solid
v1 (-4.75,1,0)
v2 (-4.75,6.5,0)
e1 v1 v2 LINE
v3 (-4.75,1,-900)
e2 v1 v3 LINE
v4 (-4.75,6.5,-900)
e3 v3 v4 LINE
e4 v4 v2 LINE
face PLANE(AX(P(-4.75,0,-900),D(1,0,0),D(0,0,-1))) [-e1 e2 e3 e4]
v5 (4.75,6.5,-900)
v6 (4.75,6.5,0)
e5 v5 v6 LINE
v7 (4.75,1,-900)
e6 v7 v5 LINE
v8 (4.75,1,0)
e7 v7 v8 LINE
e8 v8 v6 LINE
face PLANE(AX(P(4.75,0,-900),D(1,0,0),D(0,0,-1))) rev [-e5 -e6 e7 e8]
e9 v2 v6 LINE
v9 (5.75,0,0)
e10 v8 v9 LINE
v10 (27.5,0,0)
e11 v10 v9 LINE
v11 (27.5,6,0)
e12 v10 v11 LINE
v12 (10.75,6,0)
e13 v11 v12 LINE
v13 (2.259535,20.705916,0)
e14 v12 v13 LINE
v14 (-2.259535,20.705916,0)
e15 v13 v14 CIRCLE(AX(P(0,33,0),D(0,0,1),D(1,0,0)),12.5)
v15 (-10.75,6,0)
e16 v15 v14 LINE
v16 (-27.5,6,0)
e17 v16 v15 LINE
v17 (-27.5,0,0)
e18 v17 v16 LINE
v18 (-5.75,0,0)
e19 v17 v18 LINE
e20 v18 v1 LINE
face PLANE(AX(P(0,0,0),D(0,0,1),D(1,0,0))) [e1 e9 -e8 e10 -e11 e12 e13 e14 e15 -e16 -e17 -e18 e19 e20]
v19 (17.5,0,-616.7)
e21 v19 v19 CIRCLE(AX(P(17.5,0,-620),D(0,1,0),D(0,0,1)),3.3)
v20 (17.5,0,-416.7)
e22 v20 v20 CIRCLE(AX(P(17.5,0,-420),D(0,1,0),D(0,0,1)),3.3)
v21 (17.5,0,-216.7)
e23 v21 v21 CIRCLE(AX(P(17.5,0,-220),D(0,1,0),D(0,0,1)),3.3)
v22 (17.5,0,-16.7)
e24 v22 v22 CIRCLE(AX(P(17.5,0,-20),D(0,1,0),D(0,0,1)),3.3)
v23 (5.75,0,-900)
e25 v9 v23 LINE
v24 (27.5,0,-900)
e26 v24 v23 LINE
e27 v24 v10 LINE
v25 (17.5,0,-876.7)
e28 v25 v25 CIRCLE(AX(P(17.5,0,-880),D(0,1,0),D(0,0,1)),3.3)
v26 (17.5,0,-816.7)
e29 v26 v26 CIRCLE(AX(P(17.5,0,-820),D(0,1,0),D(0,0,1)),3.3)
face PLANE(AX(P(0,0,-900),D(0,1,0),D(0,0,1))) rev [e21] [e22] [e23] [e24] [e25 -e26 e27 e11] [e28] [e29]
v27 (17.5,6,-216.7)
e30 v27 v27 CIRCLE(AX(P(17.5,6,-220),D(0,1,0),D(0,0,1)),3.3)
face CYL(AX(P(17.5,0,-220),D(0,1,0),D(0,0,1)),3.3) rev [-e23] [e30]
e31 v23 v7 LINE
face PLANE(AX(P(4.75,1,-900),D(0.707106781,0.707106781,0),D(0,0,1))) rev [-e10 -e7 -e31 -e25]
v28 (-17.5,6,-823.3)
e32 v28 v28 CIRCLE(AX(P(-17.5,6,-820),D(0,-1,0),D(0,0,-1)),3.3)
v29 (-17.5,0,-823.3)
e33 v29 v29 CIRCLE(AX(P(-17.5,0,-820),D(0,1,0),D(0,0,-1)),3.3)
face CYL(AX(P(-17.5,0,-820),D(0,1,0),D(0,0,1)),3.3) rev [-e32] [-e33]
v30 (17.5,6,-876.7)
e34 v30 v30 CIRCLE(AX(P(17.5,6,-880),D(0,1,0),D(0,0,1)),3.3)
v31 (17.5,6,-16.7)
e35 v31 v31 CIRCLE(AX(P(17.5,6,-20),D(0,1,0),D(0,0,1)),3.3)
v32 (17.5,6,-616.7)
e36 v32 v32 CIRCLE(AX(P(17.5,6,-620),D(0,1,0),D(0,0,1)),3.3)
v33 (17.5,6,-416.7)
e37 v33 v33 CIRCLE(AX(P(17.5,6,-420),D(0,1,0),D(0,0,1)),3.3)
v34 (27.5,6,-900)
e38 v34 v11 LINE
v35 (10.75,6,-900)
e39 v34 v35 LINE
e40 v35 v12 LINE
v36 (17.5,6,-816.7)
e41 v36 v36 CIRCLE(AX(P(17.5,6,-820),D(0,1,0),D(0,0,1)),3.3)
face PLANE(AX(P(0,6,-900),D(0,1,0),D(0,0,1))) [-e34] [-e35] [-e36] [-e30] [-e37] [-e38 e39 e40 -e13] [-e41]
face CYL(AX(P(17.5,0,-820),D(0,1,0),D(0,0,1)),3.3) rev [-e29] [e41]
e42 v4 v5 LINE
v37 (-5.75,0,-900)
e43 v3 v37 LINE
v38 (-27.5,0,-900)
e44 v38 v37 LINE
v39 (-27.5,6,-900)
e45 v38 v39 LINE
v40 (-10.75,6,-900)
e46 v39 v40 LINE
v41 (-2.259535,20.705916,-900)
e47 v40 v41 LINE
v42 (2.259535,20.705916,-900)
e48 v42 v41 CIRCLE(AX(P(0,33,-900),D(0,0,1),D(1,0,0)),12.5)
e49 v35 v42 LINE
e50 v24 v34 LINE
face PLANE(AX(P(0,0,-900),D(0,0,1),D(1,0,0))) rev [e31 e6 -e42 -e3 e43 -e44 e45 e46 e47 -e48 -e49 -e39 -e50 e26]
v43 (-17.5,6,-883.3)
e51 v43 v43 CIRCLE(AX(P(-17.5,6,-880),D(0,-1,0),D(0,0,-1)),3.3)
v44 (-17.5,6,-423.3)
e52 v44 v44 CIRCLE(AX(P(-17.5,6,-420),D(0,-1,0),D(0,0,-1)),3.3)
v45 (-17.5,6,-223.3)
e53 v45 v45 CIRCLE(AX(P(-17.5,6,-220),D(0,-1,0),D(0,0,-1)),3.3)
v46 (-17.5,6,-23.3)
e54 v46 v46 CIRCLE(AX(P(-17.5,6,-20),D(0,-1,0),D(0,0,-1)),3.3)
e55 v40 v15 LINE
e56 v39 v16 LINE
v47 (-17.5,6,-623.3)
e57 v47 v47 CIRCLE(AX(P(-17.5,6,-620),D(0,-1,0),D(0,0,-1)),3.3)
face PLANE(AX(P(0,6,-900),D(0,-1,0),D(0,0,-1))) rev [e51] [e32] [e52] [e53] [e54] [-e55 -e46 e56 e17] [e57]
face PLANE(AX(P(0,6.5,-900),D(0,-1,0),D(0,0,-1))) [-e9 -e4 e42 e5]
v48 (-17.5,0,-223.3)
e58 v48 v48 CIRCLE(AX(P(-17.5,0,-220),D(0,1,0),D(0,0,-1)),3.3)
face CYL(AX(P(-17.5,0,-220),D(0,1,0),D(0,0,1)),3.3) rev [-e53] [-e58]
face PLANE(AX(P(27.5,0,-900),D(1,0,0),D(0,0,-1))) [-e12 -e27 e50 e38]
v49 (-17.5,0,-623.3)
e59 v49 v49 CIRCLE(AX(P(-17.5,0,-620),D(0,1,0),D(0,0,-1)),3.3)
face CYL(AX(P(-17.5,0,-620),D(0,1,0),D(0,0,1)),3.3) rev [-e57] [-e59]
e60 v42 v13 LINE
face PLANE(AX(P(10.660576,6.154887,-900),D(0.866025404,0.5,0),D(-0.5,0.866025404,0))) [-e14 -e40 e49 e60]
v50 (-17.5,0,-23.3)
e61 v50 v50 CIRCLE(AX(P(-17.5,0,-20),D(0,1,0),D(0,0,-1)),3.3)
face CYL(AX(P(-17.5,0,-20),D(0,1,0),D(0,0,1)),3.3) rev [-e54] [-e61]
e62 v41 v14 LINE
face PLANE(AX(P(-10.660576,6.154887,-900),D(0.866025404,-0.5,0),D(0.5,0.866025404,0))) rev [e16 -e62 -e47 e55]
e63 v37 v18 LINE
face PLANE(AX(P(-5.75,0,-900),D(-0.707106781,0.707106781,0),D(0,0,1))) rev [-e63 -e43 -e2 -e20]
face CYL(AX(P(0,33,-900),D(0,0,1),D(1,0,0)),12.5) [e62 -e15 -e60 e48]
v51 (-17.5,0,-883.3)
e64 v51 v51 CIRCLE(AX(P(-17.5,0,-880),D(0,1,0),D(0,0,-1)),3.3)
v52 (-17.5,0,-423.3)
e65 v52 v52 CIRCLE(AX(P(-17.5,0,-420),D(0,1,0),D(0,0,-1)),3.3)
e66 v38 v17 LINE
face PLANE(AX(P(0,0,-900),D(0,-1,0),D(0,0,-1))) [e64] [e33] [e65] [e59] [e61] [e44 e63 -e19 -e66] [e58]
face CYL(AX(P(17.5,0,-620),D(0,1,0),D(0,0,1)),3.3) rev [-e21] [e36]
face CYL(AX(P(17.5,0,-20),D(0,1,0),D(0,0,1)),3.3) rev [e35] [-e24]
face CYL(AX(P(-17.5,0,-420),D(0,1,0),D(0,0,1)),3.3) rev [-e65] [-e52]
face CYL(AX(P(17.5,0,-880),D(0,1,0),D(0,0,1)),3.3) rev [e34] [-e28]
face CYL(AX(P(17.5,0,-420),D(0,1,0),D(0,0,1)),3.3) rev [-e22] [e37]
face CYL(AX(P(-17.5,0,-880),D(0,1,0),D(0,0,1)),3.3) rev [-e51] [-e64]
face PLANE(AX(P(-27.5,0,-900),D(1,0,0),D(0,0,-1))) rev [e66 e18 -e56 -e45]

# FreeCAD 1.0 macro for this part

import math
import FreeCAD as App
import Part
import Sketcher

V = App.Vector
Q = App.Units.Quantity


def edges_at(feature, points):
    """Names of the edges that pass closest to the given points."""
    edges = feature.Shape.Edges
    near = lambda p: min(range(len(edges)), key=lambda i: edges[i].distToShape(Part.Vertex(*p))[0])
    return sorted({f"Edge{near(p) + 1}" for p in points})

doc = App.newDocument("Part")
body = doc.addObject("PartDesign::Body", "Body")

sketch1 = doc.addObject("Sketcher::SketchObject", "Sketch")
body.addObject(sketch1)
sketch1.AttachmentSupport = (doc.XY_Plane, [""])
sketch1.MapMode = "FlatFace"
sketch1.addGeometry([
    Part.ArcOfCircle(Part.Circle(V(0, 33, 0), V(0, 0, 1), 12.5), math.radians(-80), math.radians(260)),
    Part.LineSegment(V(-2.3, 20.7, 0), V(-10.8, 6, 0)),
    Part.LineSegment(V(-10.8, 6, 0), V(-27.5, 6, 0)),
    Part.LineSegment(V(-27.5, 6, 0), V(-27.5, 0, 0)),
    Part.LineSegment(V(-27.5, 0, 0), V(-4.8, 0, 0)),
    Part.LineSegment(V(-4.8, 0, 0), V(-4.8, 6.5, 0)),
    Part.LineSegment(V(-4.8, 6.5, 0), V(4.8, 6.5, 0)),
    Part.LineSegment(V(4.8, 6.5, 0), V(4.8, 0, 0)),
    Part.LineSegment(V(4.8, 0, 0), V(27.5, 0, 0)),
    Part.LineSegment(V(27.5, 0, 0), V(27.5, 6, 0)),
    Part.LineSegment(V(27.5, 6, 0), V(10.8, 6, 0)),
    Part.LineSegment(V(10.8, 6, 0), V(2.3, 20.7, 0)),
], False)
sketch1.addConstraint([
    Sketcher.Constraint("Coincident", 0, 2, 1, 1),
    Sketcher.Constraint("Coincident", 1, 2, 2, 1),
    Sketcher.Constraint("Coincident", 2, 2, 3, 1),
    Sketcher.Constraint("Coincident", 3, 2, 4, 1),
    Sketcher.Constraint("Coincident", 4, 2, 5, 1),
    Sketcher.Constraint("Coincident", 5, 2, 6, 1),
    Sketcher.Constraint("Coincident", 6, 2, 7, 1),
    Sketcher.Constraint("Coincident", 7, 2, 8, 1),
    Sketcher.Constraint("Coincident", 8, 2, 9, 1),
    Sketcher.Constraint("Coincident", 9, 2, 10, 1),
    Sketcher.Constraint("Coincident", 10, 2, 11, 1),
    Sketcher.Constraint("Coincident", 11, 2, 0, 1),
    Sketcher.Constraint("Horizontal", 2),
    Sketcher.Constraint("Vertical", 3),
    Sketcher.Constraint("Horizontal", 4),
    Sketcher.Constraint("Vertical", 5),
    Sketcher.Constraint("Horizontal", 6),
    Sketcher.Constraint("Vertical", 7),
    Sketcher.Constraint("Horizontal", 8),
    Sketcher.Constraint("Vertical", 9),
    Sketcher.Constraint("Horizontal", 10),
    Sketcher.Constraint("Symmetric", 4, 2, 7, 2, -1, 1),
    Sketcher.Constraint("Symmetric", 3, 2, 8, 2, -2),
    Sketcher.Constraint("Symmetric", 1, 2, 10, 2, -2),
    Sketcher.Constraint("Symmetric", 0, 2, 11, 2, -2),
    Sketcher.Constraint("Radius", 0, Q("12.5 mm")),
    Sketcher.Constraint("DistanceY", 3, 2, 3, 1, Q("6 mm")),
    Sketcher.Constraint("Angle", 1, Q("-120 deg")),
    Sketcher.Constraint("DistanceX", 6, 1, 6, 2, Q("9.5 mm")),
    Sketcher.Constraint("DistanceY", 5, 1, 5, 2, Q("6.5 mm")),
    Sketcher.Constraint("DistanceY", -1, 1, 0, 3, Q("33 mm")),
    Sketcher.Constraint("DistanceX", 1, 2, 4, 2, Q("6 mm")),
    Sketcher.Constraint("DistanceX", 2, 2, 2, 1, Q("16.75 mm")),
])
pad1 = doc.addObject("PartDesign::Pad", "Pad")
body.addObject(pad1)
pad1.Profile = sketch1
pad1.Length = 900
pad1.Reversed = True
doc.recompute()

chamfer = doc.addObject("PartDesign::Chamfer", "Chamfer")
body.addObject(chamfer)
chamfer.Base = (pad1, edges_at(pad1, [(4.75, 0, -450), (-4.75, 0, -450)]))
chamfer.Size = 1

sketch2 = doc.addObject("Sketcher::SketchObject", "Sketch001")
body.addObject(sketch2)
sketch2.AttachmentSupport = (doc.XZ_Plane, [""])
sketch2.MapMode = "FlatFace"
sketch2.AttachmentOffset = App.Placement(V(0, 0, -6), App.Rotation())
sketch2.addGeometry([
    Part.Circle(V(17.5, -20, 0), V(0, 0, 1), 3.3),
    Part.Circle(V(-17.5, -20, 0), V(0, 0, 1), 3.3),
    Part.Circle(V(-17.5, -220, 0), V(0, 0, 1), 3.3),
    Part.Circle(V(17.5, -220, 0), V(0, 0, 1), 3.3),
    Part.Circle(V(-17.5, -420, 0), V(0, 0, 1), 3.3),
    Part.Circle(V(17.5, -420, 0), V(0, 0, 1), 3.3),
    Part.Circle(V(-17.5, -620, 0), V(0, 0, 1), 3.3),
    Part.Circle(V(17.5, -620, 0), V(0, 0, 1), 3.3),
    Part.Circle(V(-17.5, -820, 0), V(0, 0, 1), 3.3),
    Part.Circle(V(17.5, -820, 0), V(0, 0, 1), 3.3),
    Part.Circle(V(-17.5, -1020, 0), V(0, 0, 1), 3.3),
    Part.Circle(V(17.5, -1020, 0), V(0, 0, 1), 3.3),
    Part.Circle(V(-17.5, -1220, 0), V(0, 0, 1), 3.3),
    Part.Circle(V(17.5, -1220, 0), V(0, 0, 1), 3.3),
    Part.Circle(V(-17.5, -1420, 0), V(0, 0, 1), 3.3),
    Part.Circle(V(17.5, -1420, 0), V(0, 0, 1), 3.3),
    Part.Circle(V(-17.5, -1620, 0), V(0, 0, 1), 3.3),
    Part.Circle(V(17.5, -1620, 0), V(0, 0, 1), 3.3),
    Part.Circle(V(17.5, -880, 0), V(0, 0, 1), 3.3),
    Part.Circle(V(-17.5, -880, 0), V(0, 0, 1), 3.3),
], False)
sketch2.addConstraint([
    Sketcher.Constraint("Equal", 0, 1),
    Sketcher.Constraint("Equal", 1, 2),
    Sketcher.Constraint("Equal", 2, 3),
    Sketcher.Constraint("Equal", 3, 4),
    Sketcher.Constraint("Equal", 4, 5),
    Sketcher.Constraint("Equal", 5, 6),
    Sketcher.Constraint("Equal", 6, 7),
    Sketcher.Constraint("Equal", 7, 8),
    Sketcher.Constraint("Equal", 8, 9),
    Sketcher.Constraint("Equal", 9, 10),
    Sketcher.Constraint("Equal", 10, 11),
    Sketcher.Constraint("Equal", 11, 12),
    Sketcher.Constraint("Equal", 12, 13),
    Sketcher.Constraint("Equal", 13, 14),
    Sketcher.Constraint("Equal", 14, 15),
    Sketcher.Constraint("Equal", 15, 16),
    Sketcher.Constraint("Equal", 16, 17),
    Sketcher.Constraint("Equal", 17, 18),
    Sketcher.Constraint("Equal", 18, 19),
    Sketcher.Constraint("Symmetric", 0, 3, 1, 3, -2),
    Sketcher.Constraint("Symmetric", 2, 3, 3, 3, -2),
    Sketcher.Constraint("Symmetric", 4, 3, 5, 3, -2),
    Sketcher.Constraint("Symmetric", 6, 3, 7, 3, -2),
    Sketcher.Constraint("Symmetric", 8, 3, 9, 3, -2),
    Sketcher.Constraint("Symmetric", 10, 3, 11, 3, -2),
    Sketcher.Constraint("Symmetric", 12, 3, 13, 3, -2),
    Sketcher.Constraint("Symmetric", 14, 3, 15, 3, -2),
    Sketcher.Constraint("Symmetric", 16, 3, 17, 3, -2),
    Sketcher.Constraint("Symmetric", 18, 3, 19, 3, -2),
    Sketcher.Constraint("Vertical", 1, 3, 2, 3),
    Sketcher.Constraint("Vertical", 2, 3, 4, 3),
    Sketcher.Constraint("Vertical", 4, 3, 6, 3),
    Sketcher.Constraint("Vertical", 6, 3, 8, 3),
    Sketcher.Constraint("Vertical", 8, 3, 10, 3),
    Sketcher.Constraint("Vertical", 10, 3, 12, 3),
    Sketcher.Constraint("Vertical", 12, 3, 14, 3),
    Sketcher.Constraint("Vertical", 14, 3, 16, 3),
    Sketcher.Constraint("Vertical", 17, 3, 18, 3),
    Sketcher.Constraint("Diameter", 0, Q("6.6 mm")),
    Sketcher.Constraint("DistanceY", 0, 3, -1, 1, Q("20 mm")),
    Sketcher.Constraint("DistanceY", 2, 3, -1, 1, Q("220 mm")),
    Sketcher.Constraint("DistanceY", 4, 3, -1, 1, Q("420 mm")),
    Sketcher.Constraint("DistanceY", 6, 3, -1, 1, Q("620 mm")),
    Sketcher.Constraint("DistanceY", 8, 3, -1, 1, Q("820 mm")),
    Sketcher.Constraint("DistanceY", 10, 3, -1, 1, Q("1020 mm")),
    Sketcher.Constraint("DistanceY", 12, 3, -1, 1, Q("1220 mm")),
    Sketcher.Constraint("DistanceY", 14, 3, -1, 1, Q("1420 mm")),
    Sketcher.Constraint("DistanceY", 16, 3, -1, 1, Q("1620 mm")),
    Sketcher.Constraint("DistanceY", 18, 3, -1, 1, Q("880 mm")),
    Sketcher.Constraint("DistanceX", 1, 3, 0, 3, Q("35 mm")),
])
pocket1 = doc.addObject("PartDesign::Pocket", "Pocket")
body.addObject(pocket1)
pocket1.Profile = sketch2
pocket1.Type = "ThroughAll"
pocket1.Midplane = True

doc.recompute()
